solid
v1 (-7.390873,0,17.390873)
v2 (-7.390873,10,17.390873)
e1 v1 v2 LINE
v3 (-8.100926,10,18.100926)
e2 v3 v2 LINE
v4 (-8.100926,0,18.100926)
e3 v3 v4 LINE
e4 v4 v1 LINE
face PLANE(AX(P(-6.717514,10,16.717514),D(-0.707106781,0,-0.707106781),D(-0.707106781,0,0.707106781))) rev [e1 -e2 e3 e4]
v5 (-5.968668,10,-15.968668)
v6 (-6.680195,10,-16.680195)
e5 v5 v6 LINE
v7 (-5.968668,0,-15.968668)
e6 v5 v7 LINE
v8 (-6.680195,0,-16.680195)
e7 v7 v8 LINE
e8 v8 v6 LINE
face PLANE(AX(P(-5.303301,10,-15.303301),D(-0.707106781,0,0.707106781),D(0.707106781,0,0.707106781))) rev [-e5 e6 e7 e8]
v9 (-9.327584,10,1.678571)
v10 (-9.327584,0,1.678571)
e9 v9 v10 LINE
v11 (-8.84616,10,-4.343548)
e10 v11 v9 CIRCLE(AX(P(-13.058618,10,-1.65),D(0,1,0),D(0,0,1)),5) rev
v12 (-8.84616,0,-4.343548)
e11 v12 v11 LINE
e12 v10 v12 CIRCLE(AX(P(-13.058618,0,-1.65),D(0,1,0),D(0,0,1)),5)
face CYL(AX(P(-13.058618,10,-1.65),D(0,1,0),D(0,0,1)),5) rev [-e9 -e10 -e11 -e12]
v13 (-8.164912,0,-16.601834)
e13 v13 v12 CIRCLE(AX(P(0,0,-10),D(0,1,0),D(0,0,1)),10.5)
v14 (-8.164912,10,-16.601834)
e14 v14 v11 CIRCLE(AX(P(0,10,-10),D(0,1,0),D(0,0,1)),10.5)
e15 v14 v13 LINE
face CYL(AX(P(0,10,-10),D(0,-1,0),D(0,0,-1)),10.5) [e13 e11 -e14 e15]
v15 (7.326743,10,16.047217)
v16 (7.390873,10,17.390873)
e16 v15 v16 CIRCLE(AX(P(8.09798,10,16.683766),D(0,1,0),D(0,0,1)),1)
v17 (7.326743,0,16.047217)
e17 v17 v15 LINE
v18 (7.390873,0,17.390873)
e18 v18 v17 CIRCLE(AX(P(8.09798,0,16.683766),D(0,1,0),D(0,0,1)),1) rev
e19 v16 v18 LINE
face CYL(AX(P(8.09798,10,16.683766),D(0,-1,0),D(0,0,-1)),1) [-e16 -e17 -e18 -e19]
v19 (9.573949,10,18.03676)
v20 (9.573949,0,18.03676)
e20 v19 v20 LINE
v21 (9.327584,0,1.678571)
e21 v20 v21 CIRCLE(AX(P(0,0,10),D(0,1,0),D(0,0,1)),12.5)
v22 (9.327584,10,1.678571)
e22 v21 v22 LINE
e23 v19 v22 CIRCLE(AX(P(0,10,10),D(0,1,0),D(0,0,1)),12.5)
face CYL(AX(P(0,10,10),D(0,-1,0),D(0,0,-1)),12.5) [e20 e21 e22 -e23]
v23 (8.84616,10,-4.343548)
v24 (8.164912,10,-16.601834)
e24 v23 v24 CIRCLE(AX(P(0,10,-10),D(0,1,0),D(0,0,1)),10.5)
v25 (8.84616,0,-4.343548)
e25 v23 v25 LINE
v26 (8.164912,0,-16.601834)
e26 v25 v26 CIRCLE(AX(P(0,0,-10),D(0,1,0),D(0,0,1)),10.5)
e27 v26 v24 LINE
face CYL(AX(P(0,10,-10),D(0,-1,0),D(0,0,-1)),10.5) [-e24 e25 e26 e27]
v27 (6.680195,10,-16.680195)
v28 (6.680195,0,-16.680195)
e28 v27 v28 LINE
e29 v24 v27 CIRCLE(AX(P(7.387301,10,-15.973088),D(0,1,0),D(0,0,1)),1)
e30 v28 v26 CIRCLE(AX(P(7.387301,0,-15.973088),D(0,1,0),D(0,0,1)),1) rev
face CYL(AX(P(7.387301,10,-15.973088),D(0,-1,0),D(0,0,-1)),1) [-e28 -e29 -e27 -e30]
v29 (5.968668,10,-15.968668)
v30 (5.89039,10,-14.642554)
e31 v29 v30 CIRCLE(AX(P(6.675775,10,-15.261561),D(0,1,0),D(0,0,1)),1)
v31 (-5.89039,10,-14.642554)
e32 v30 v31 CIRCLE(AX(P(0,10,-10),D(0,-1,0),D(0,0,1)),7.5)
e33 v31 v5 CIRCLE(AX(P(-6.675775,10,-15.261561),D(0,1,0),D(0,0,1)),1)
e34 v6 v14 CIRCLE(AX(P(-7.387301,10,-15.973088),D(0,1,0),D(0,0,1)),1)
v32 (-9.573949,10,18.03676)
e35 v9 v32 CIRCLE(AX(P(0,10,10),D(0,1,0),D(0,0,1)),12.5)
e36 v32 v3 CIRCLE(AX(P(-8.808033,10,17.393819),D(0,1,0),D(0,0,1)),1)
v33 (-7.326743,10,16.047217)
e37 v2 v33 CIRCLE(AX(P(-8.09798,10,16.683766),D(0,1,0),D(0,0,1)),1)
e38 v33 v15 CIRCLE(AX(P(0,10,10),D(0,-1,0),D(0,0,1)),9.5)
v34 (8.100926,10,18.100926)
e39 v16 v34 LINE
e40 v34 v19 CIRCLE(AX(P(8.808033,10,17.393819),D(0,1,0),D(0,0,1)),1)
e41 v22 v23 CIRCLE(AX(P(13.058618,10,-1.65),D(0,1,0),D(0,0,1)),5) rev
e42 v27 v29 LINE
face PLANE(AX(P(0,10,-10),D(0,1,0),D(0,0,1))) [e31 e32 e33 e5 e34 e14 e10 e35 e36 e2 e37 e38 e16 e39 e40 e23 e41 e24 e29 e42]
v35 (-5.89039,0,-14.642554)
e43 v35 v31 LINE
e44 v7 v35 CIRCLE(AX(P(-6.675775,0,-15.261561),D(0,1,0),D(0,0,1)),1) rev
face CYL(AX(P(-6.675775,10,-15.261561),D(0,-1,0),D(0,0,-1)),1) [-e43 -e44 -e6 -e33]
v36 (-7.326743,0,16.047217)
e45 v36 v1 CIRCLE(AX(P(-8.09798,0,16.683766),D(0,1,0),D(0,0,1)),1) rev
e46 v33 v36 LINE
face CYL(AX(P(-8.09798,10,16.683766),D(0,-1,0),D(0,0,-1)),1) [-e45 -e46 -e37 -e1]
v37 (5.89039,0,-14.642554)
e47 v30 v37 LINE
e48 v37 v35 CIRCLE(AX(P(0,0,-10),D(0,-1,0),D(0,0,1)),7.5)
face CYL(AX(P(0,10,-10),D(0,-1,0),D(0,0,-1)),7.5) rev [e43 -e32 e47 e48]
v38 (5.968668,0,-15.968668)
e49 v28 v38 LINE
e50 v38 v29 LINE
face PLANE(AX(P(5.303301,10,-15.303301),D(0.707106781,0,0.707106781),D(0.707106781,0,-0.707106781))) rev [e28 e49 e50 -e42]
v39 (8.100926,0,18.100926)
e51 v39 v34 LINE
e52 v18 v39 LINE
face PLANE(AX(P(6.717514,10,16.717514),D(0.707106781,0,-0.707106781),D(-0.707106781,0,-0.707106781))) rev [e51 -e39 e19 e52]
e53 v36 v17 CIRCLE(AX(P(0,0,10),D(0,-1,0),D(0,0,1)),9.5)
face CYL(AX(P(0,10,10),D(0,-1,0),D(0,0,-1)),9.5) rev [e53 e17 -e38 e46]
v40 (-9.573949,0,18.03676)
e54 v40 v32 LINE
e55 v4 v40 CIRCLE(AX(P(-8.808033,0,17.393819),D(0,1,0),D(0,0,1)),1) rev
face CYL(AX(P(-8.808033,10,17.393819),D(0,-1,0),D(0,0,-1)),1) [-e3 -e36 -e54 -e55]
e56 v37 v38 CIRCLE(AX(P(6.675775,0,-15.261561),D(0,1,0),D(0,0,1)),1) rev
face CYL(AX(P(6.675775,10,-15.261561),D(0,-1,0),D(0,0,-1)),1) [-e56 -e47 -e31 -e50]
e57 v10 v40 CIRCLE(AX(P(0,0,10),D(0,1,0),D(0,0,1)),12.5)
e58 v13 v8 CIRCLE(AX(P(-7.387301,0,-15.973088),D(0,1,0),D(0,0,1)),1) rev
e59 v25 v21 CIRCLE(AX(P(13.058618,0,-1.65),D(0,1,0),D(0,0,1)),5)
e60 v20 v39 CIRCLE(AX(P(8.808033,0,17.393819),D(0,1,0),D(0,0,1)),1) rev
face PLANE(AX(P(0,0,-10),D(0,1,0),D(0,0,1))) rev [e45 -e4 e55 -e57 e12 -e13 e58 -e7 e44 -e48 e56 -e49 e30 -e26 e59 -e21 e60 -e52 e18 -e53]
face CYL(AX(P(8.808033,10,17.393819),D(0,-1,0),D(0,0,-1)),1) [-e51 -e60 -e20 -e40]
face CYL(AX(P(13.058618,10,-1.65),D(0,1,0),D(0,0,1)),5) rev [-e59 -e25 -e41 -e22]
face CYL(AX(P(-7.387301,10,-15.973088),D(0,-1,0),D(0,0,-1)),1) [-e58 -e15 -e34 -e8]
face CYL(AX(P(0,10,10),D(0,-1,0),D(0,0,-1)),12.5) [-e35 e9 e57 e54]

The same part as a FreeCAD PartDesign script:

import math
import FreeCAD as App
import Part
import Sketcher
from FreeCAD import Vector


def edges_at(feature, points):
    """Names of the edges that pass closest to the given points."""
    edges = feature.Shape.Edges
    near = lambda p: min(range(len(edges)), key=lambda i: edges[i].distToShape(Part.Vertex(*p))[0])
    return sorted({f"Edge{near(p) + 1}" for p in points})

doc = App.newDocument("Part")
body = doc.addObject("PartDesign::Body", "Body")

sketch1 = body.newObject("Sketcher::SketchObject", "Sketch")
sketch1.AttachmentSupport = (doc.getObject("XZ_Plane"), [""])
sketch1.MapMode = "FlatFace"
sketch1.addGeometry([
    Part.LineSegment(Vector(-5.303301, -15.303301, 0), Vector(-7.424621, -17.424621, 0)),
    Part.ArcOfCircle(Part.Circle(Vector(0, -10, 0), Vector(0, 0, 1), 10.5), math.radians(122.556932), math.radians(225)),
    Part.ArcOfCircle(Part.Circle(Vector(0, 10, 0), Vector(0, 0, 1), 12.5), math.radians(135), math.radians(243.125652)),
    Part.LineSegment(Vector(-8.838835, 18.838835, 0), Vector(-6.717514, 16.717514, 0)),
    Part.ArcOfCircle(Part.Circle(Vector(0, 10, 0), Vector(0, 0, 1), 9.5), math.radians(135), math.radians(405)),
    Part.LineSegment(Vector(6.717514, 16.717514, 0), Vector(8.838835, 18.838835, 0)),
    Part.ArcOfCircle(Part.Circle(Vector(0, 10, 0), Vector(0, 0, 1), 12.5), math.radians(-63.125652), math.radians(45)),
    Part.ArcOfCircle(Part.Circle(Vector(0, -10, 0), Vector(0, 0, 1), 10.5), math.radians(-45), math.radians(57.443068)),
    Part.LineSegment(Vector(7.424621, -17.424621, 0), Vector(5.303301, -15.303301, 0)),
    Part.ArcOfCircle(Part.Circle(Vector(0, -10, 0), Vector(0, 0, 1), 7.5), math.radians(-45), math.radians(225)),
], False)
sketch1.addConstraint([
    Sketcher.Constraint("Coincident", 0, 2, 1, 2),
    Sketcher.Constraint("Coincident", 1, 1, 2, 2),
    Sketcher.Constraint("Coincident", 2, 1, 3, 1),
    Sketcher.Constraint("Coincident", 3, 2, 4, 1),
    Sketcher.Constraint("Coincident", 4, 2, 5, 1),
    Sketcher.Constraint("Coincident", 5, 2, 6, 2),
    Sketcher.Constraint("Coincident", 6, 1, 7, 2),
    Sketcher.Constraint("Coincident", 7, 1, 8, 1),
    Sketcher.Constraint("Coincident", 8, 2, 9, 1),
    Sketcher.Constraint("Coincident", 9, 2, 0, 1),
    Sketcher.Constraint("Coincident", 4, 3, 2, 3),
    Sketcher.Constraint("Coincident", 6, 3, 2, 3),
    Sketcher.Constraint("Coincident", 7, 3, 1, 3),
    Sketcher.Constraint("Coincident", 9, 3, 1, 3),
    Sketcher.Constraint("Equal", 2, 6),
    Sketcher.Constraint("Equal", 1, 7),
    Sketcher.Constraint("Symmetric", 1, 3, 2, 3, -1, 1),
    Sketcher.Constraint("Symmetric", 3, 2, 4, 2, -2),
    Sketcher.Constraint("Perpendicular", 0, 3),
    Sketcher.Constraint("Perpendicular", 3, 5),
    Sketcher.Constraint("Perpendicular", 5, 8),
    Sketcher.Constraint("Horizontal", 2, 1, 5, 2),
    Sketcher.Constraint("Horizontal", 0, 2, 7, 1),
    Sketcher.Constraint("Equal", 0, 3),
    Sketcher.Constraint("Radius", 1, 10.5),
    Sketcher.Constraint("Radius", 2, 12.5),
    Sketcher.Constraint("Radius", 4, 9.5),
    Sketcher.Constraint("DistanceY", 1, 3, -1, 1, 10.0),
    Sketcher.Constraint("DistanceX", -1, 1, 8, 2, 5.303301),
    Sketcher.Constraint("DistanceX", 3, 2, 1, 1, 1.067072),
])
pad1 = body.newObject("PartDesign::Pad", "Pad")
pad1.Profile = sketch1
pad1.Length = 10
pad1.Reversed = True
doc.recompute()

fillet = body.newObject("PartDesign::Fillet", "Fillet")
fillet.Base = (pad1, edges_at(pad1, [
    (5.303, 5, -15.303),
    (7.425, 5, -17.425),
    (8.839, 5, 18.839),
    (6.718, 5, 16.718),
    (-6.718, 5, 16.718),
    (-8.839, 5, 18.839),
    (-7.425, 5, -17.425),
    (-5.303, 5, -15.303),
]))
fillet.Radius = 1
doc.recompute()

fillet2 = body.newObject("PartDesign::Fillet", "Fillet001")
fillet2.Base = (fillet, edges_at(fillet, [(5.65, 5, -1.15), (-5.65, 5, -1.15)]))
fillet2.Radius = 5

doc.recompute()
